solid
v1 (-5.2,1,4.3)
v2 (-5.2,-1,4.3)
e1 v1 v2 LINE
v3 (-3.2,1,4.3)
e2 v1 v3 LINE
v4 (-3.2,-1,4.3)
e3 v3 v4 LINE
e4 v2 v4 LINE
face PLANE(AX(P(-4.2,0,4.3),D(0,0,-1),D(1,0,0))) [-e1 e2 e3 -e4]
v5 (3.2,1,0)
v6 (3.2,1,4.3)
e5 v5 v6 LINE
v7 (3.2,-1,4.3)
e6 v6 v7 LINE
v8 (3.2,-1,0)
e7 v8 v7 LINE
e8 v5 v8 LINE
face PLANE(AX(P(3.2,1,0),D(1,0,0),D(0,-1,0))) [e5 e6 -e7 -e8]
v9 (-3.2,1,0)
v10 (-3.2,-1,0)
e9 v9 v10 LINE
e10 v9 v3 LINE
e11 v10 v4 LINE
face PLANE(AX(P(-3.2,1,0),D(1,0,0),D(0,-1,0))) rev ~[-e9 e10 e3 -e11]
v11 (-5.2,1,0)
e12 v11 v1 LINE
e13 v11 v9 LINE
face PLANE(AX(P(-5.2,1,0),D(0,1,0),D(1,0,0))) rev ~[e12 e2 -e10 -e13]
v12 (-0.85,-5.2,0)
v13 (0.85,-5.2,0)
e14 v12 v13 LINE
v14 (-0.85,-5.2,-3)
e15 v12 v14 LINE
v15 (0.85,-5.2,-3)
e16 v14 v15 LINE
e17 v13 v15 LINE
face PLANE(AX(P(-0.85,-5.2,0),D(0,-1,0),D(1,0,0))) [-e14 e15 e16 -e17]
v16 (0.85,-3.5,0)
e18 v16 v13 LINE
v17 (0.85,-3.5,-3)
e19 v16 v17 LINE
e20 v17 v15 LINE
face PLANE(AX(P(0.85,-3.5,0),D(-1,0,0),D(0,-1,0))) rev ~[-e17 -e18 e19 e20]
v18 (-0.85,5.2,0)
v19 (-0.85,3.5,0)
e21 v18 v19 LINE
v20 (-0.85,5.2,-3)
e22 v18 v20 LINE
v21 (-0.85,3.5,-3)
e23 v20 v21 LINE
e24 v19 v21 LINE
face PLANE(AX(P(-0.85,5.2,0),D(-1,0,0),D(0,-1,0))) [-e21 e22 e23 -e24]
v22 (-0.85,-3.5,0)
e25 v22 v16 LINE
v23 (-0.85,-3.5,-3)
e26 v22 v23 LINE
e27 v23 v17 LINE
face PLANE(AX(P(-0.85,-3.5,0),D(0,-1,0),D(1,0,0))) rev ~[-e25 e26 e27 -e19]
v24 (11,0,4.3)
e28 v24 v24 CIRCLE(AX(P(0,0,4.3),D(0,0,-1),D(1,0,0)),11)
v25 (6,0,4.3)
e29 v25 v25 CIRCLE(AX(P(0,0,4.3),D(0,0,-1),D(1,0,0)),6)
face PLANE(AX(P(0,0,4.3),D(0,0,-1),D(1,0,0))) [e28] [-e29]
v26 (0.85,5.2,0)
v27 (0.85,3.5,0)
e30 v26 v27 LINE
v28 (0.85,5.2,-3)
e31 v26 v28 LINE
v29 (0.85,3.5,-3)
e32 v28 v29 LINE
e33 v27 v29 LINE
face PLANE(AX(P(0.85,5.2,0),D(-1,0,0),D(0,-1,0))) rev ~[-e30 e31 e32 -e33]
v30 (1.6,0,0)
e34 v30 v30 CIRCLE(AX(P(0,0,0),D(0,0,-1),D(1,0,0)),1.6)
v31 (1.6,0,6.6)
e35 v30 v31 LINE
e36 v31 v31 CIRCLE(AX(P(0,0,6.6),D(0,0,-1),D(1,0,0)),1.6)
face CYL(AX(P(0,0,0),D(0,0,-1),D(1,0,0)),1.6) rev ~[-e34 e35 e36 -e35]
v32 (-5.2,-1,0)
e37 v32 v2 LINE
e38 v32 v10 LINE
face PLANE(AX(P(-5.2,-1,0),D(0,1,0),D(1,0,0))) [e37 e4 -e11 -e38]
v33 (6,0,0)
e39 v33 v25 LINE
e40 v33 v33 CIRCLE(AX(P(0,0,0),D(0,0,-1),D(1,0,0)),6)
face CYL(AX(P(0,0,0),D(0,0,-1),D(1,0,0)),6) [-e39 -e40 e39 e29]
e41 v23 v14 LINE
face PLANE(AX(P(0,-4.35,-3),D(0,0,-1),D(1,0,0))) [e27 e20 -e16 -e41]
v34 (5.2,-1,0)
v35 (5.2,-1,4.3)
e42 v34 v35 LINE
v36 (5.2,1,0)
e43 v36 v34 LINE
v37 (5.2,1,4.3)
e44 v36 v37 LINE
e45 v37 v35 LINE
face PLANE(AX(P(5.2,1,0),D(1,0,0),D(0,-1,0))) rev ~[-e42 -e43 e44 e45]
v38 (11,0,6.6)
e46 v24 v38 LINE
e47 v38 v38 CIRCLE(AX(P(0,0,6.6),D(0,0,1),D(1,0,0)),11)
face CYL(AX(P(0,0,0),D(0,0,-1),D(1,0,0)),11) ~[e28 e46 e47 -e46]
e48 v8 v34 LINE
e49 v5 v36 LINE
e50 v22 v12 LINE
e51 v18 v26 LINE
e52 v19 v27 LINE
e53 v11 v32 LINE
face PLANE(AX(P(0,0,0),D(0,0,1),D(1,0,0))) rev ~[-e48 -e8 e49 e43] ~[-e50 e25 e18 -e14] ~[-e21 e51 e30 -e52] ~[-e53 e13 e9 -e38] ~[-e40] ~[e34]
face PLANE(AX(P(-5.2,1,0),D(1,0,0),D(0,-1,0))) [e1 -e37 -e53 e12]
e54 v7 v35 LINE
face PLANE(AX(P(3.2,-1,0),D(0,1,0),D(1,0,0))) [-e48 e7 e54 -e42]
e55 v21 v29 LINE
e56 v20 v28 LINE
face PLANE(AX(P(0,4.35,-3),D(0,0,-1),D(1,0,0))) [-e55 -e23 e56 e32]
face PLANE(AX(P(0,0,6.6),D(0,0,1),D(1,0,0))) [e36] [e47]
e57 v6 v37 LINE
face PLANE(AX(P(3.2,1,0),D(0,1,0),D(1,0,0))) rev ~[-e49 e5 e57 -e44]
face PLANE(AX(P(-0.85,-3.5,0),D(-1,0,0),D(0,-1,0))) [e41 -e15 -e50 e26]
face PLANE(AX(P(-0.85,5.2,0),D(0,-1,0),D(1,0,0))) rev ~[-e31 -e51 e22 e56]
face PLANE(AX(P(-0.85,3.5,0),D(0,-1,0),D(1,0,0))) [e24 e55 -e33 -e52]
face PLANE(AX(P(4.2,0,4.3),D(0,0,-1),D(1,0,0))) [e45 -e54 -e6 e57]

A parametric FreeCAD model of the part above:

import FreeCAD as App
import Part
import Sketcher
Q = App.Units.Quantity

doc = App.newDocument("Part")
body = doc.addObject("PartDesign::Body", "Body")

sketch1 = body.newObject("Sketcher::SketchObject", "Sketch")
sketch1.AttachmentSupport = (doc.getObject("XY_Plane"), [""])
sketch1.MapMode = "FlatFace"
sketch1.addGeometry(Part.Circle(App.Vector(0, 0, 0), App.Vector(0, 0, 1), 11), False)
sketch1.addConstraint(Sketcher.Constraint("Coincident", 0, 3, -1, 1))
sketch1.addConstraint(Sketcher.Constraint("Diameter", 0, Q("22 mm")))
pad1 = body.newObject("PartDesign::Pad", "Pad")
pad1.Profile = sketch1
pad1.Length = 6.6

sketch2 = body.newObject("Sketcher::SketchObject", "Sketch001")
sketch2.AttachmentSupport = (doc.getObject("XY_Plane"), [""])
sketch2.MapMode = "FlatFace"
sketch2.addGeometry(Part.Circle(App.Vector(0, 0, 0), App.Vector(0, 0, 1), 11), False)
sketch2.addGeometry(Part.Circle(App.Vector(0, 0, 0), App.Vector(0, 0, 1), 6), False)
sketch2.addConstraint(Sketcher.Constraint("Coincident", 0, 3, -1, 1))
sketch2.addConstraint(Sketcher.Constraint("Coincident", 1, 3, -1, 1))
sketch2.addConstraint(Sketcher.Constraint("Diameter", 0, Q("22 mm")))
sketch2.addConstraint(Sketcher.Constraint("Diameter", 1, Q("12 mm")))
pocket1 = body.newObject("PartDesign::Pocket", "Pocket")
pocket1.Profile = sketch2
pocket1.Length = 4.3
pocket1.Reversed = True

sketch3 = body.newObject("Sketcher::SketchObject", "Sketch002")
sketch3.AttachmentSupport = (doc.getObject("XY_Plane"), [""])
sketch3.MapMode = "FlatFace"
sketch3.addGeometry(Part.LineSegment(App.Vector(-0.8, -5.2, 0), App.Vector(-0.8, -3.5, 0)), False)
sketch3.addGeometry(Part.LineSegment(App.Vector(-0.8, -3.5, 0), App.Vector(0.8, -3.5, 0)), False)
sketch3.addGeometry(Part.LineSegment(App.Vector(0.8, -3.5, 0), App.Vector(0.8, -5.2, 0)), False)
sketch3.addGeometry(Part.LineSegment(App.Vector(0.8, -5.2, 0), App.Vector(-0.8, -5.2, 0)), False)
sketch3.addGeometry(Part.LineSegment(App.Vector(-0.8, 3.5, 0), App.Vector(-0.8, 5.2, 0)), False)
sketch3.addGeometry(Part.LineSegment(App.Vector(-0.8, 5.2, 0), App.Vector(0.8, 5.2, 0)), False)
sketch3.addGeometry(Part.LineSegment(App.Vector(0.8, 5.2, 0), App.Vector(0.8, 3.5, 0)), False)
sketch3.addGeometry(Part.LineSegment(App.Vector(0.8, 3.5, 0), App.Vector(-0.8, 3.5, 0)), False)
sketch3.addConstraint(Sketcher.Constraint("Coincident", 0, 2, 1, 1))
sketch3.addConstraint(Sketcher.Constraint("Coincident", 1, 2, 2, 1))
sketch3.addConstraint(Sketcher.Constraint("Coincident", 2, 2, 3, 1))
sketch3.addConstraint(Sketcher.Constraint("Coincident", 3, 2, 0, 1))
sketch3.addConstraint(Sketcher.Constraint("Coincident", 4, 2, 5, 1))
sketch3.addConstraint(Sketcher.Constraint("Coincident", 5, 2, 6, 1))
sketch3.addConstraint(Sketcher.Constraint("Coincident", 6, 2, 7, 1))
sketch3.addConstraint(Sketcher.Constraint("Coincident", 7, 2, 4, 1))
sketch3.addConstraint(Sketcher.Constraint("Vertical", 0))
sketch3.addConstraint(Sketcher.Constraint("Horizontal", 1))
sketch3.addConstraint(Sketcher.Constraint("Vertical", 2))
sketch3.addConstraint(Sketcher.Constraint("Horizontal", 3))
sketch3.addConstraint(Sketcher.Constraint("Vertical", 4))
sketch3.addConstraint(Sketcher.Constraint("Horizontal", 5))
sketch3.addConstraint(Sketcher.Constraint("Vertical", 6))
sketch3.addConstraint(Sketcher.Constraint("Horizontal", 7))
sketch3.addConstraint(Sketcher.Constraint("Symmetric", 2, 2, 4, 2, -1, 1))
sketch3.addConstraint(Sketcher.Constraint("Symmetric", 0, 2, 6, 2, -1, 1))
sketch3.addConstraint(Sketcher.Constraint("Vertical", 3, 2, 4, 2))
sketch3.addConstraint(Sketcher.Constraint("Equal", 7, 0))
sketch3.addConstraint(Sketcher.Constraint("DistanceX", 1, 1, 1, 2, Q("1.7 mm")))
sketch3.addConstraint(Sketcher.Constraint("DistanceY", 1, 2, 6, 2, Q("7 mm")))
pad2 = body.newObject("PartDesign::Pad", "Pad001")
pad2.Profile = sketch3
pad2.Length = 3
pad2.Reversed = True

sketch4 = body.newObject("Sketcher::SketchObject", "Sketch003")
sketch4.AttachmentSupport = (doc.getObject("XY_Plane"), [""])
sketch4.MapMode = "FlatFace"
sketch4.addGeometry(Part.LineSegment(App.Vector(-5.2, -1, 0), App.Vector(-5.2, 1, 0)), False)
sketch4.addGeometry(Part.LineSegment(App.Vector(-5.2, 1, 0), App.Vector(-3.2, 1, 0)), False)
sketch4.addGeometry(Part.LineSegment(App.Vector(-3.2, 1, 0), App.Vector(-3.2, -1, 0)), False)
sketch4.addGeometry(Part.LineSegment(App.Vector(-3.2, -1, 0), App.Vector(-5.2, -1, 0)), False)
sketch4.addGeometry(Part.LineSegment(App.Vector(3.2, -1, 0), App.Vector(3.2, 1, 0)), False)
sketch4.addGeometry(Part.LineSegment(App.Vector(3.2, 1, 0), App.Vector(5.2, 1, 0)), False)
sketch4.addGeometry(Part.LineSegment(App.Vector(5.2, 1, 0), App.Vector(5.2, -1, 0)), False)
sketch4.addGeometry(Part.LineSegment(App.Vector(5.2, -1, 0), App.Vector(3.2, -1, 0)), False)
sketch4.addConstraint(Sketcher.Constraint("Coincident", 0, 2, 1, 1))
sketch4.addConstraint(Sketcher.Constraint("Coincident", 1, 2, 2, 1))
sketch4.addConstraint(Sketcher.Constraint("Coincident", 2, 2, 3, 1))
sketch4.addConstraint(Sketcher.Constraint("Coincident", 3, 2, 0, 1))
sketch4.addConstraint(Sketcher.Constraint("Coincident", 4, 2, 5, 1))
sketch4.addConstraint(Sketcher.Constraint("Coincident", 5, 2, 6, 1))
sketch4.addConstraint(Sketcher.Constraint("Coincident", 6, 2, 7, 1))
sketch4.addConstraint(Sketcher.Constraint("Coincident", 7, 2, 4, 1))
sketch4.addConstraint(Sketcher.Constraint("Vertical", 0))
sketch4.addConstraint(Sketcher.Constraint("Horizontal", 1))
sketch4.addConstraint(Sketcher.Constraint("Vertical", 2))
sketch4.addConstraint(Sketcher.Constraint("Horizontal", 3))
sketch4.addConstraint(Sketcher.Constraint("Vertical", 4))
sketch4.addConstraint(Sketcher.Constraint("Horizontal", 5))
sketch4.addConstraint(Sketcher.Constraint("Vertical", 6))
sketch4.addConstraint(Sketcher.Constraint("Horizontal", 7))
sketch4.addConstraint(Sketcher.Constraint("Symmetric", 2, 2, 4, 2, -1, 1))
sketch4.addConstraint(Sketcher.Constraint("Symmetric", 0, 2, 6, 2, -1, 1))
sketch4.addConstraint(Sketcher.Constraint("Horizontal", 1, 2, 4, 2))
sketch4.addConstraint(Sketcher.Constraint("Equal", 7, 0))
sketch4.addConstraint(Sketcher.Constraint("DistanceX", 1, 1, 1, 2, Q("2 mm")))
sketch4.addConstraint(Sketcher.Constraint("DistanceX", 0, 2, -1, 1, Q("5.2 mm")))
pocket2 = body.newObject("PartDesign::Pocket", "Pocket001")
pocket2.Profile = sketch4
pocket2.Length = 4.3
pocket2.Reversed = True

sketch5 = body.newObject("Sketcher::SketchObject", "Sketch004")
sketch5.AttachmentSupport = (doc.getObject("XY_Plane"), [""])
sketch5.MapMode = "FlatFace"
sketch5.addGeometry(Part.Circle(App.Vector(0, 0, 0), App.Vector(0, 0, 1), 1.6), False)
sketch5.addConstraint(Sketcher.Constraint("Coincident", 0, 3, -1, 1))
sketch5.addConstraint(Sketcher.Constraint("Diameter", 0, Q("3.2 mm")))
pocket3 = body.newObject("PartDesign::Pocket", "Pocket002")
pocket3.Profile = sketch5
pocket3.Type = "ThroughAll"
pocket3.Reversed = True

doc.recompute()
